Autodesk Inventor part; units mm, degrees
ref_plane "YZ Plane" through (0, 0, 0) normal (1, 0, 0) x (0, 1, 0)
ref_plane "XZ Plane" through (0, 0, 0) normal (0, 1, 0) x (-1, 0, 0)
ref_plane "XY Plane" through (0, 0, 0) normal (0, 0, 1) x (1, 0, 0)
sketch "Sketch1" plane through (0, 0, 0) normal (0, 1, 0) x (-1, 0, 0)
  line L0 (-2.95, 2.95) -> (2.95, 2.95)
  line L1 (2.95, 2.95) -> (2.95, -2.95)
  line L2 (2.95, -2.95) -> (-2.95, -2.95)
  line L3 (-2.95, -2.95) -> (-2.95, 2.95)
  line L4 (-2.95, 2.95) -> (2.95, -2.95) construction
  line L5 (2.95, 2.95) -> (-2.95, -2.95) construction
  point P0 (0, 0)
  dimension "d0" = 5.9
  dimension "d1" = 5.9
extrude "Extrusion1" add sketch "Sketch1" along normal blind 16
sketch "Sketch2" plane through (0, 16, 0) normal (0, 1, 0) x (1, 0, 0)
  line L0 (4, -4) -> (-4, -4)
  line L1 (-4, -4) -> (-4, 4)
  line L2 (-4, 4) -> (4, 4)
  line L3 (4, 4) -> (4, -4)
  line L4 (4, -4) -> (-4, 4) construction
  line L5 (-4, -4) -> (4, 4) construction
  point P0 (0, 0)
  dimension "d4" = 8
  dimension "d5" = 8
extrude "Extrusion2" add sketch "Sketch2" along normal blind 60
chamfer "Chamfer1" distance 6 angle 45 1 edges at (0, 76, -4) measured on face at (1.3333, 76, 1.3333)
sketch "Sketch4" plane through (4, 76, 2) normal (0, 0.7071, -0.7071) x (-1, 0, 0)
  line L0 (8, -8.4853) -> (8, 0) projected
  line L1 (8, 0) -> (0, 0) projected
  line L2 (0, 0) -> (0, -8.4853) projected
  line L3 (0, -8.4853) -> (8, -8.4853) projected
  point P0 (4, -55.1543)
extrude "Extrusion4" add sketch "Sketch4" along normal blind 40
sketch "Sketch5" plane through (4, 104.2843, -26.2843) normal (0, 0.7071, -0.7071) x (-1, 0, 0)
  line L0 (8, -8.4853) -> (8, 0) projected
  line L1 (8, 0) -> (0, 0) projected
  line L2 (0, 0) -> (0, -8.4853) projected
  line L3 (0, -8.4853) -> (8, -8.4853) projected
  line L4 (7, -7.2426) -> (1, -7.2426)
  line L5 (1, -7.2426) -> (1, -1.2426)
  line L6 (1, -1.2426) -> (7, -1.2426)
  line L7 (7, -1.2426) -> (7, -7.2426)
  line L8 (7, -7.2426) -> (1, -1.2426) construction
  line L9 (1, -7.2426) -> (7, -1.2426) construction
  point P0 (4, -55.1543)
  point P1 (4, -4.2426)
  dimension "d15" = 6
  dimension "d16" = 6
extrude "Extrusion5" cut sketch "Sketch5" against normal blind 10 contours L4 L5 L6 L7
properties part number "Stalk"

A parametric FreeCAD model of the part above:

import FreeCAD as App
import Part
import Sketcher
from FreeCAD import Vector
Q = App.Units.Quantity


def edges_at(feature, points):
    """Names of the edges that pass closest to the given points."""
    edges = feature.Shape.Edges
    near = lambda p: min(range(len(edges)), key=lambda i: edges[i].distToShape(Part.Vertex(*p))[0])
    return sorted({f"Edge{near(p) + 1}" for p in points})

doc = App.newDocument("Part")
body = doc.addObject("PartDesign::Body", "Body")

sketch1 = body.newObject("Sketcher::SketchObject", "Sketch")
sketch1.AttachmentSupport = (doc.getObject("XZ_Plane"), [""])
sketch1.MapMode = "FlatFace"
sketch1.addGeometry([
    Part.LineSegment(Vector(-3, 3, 0), Vector(3, 3, 0)),
    Part.LineSegment(Vector(3, 3, 0), Vector(3, -3, 0)),
    Part.LineSegment(Vector(3, -3, 0), Vector(-3, -3, 0)),
    Part.LineSegment(Vector(-3, -3, 0), Vector(-3, 3, 0)),
], False)
sketch1.addConstraint([
    Sketcher.Constraint("Coincident", 0, 2, 1, 1),
    Sketcher.Constraint("Coincident", 1, 2, 2, 1),
    Sketcher.Constraint("Coincident", 2, 2, 3, 1),
    Sketcher.Constraint("Coincident", 3, 2, 0, 1),
    Sketcher.Constraint("Horizontal", 0),
    Sketcher.Constraint("Vertical", 1),
    Sketcher.Constraint("Horizontal", 2),
    Sketcher.Constraint("Vertical", 3),
    Sketcher.Constraint("Symmetric", 0, 2, 2, 2, -1, 1),
    Sketcher.Constraint("Equal", 2, 1),
    Sketcher.Constraint("DistanceX", 0, 1, 0, 2, Q("5.9 mm")),
])
pad1 = body.newObject("PartDesign::Pad", "Pad")
pad1.Profile = sketch1
pad1.Length = 16
pad1.Reversed = True

sketch2 = body.newObject("Sketcher::SketchObject", "Sketch001")
sketch2.AttachmentSupport = (doc.getObject("XZ_Plane"), [""])
sketch2.MapMode = "FlatFace"
sketch2.AttachmentOffset = App.Placement(Vector(0, 0, -16), App.Rotation())
sketch2.addGeometry([
    Part.LineSegment(Vector(-4, 4, 0), Vector(4, 4, 0)),
    Part.LineSegment(Vector(4, 4, 0), Vector(4, -4, 0)),
    Part.LineSegment(Vector(4, -4, 0), Vector(-4, -4, 0)),
    Part.LineSegment(Vector(-4, -4, 0), Vector(-4, 4, 0)),
], False)
sketch2.addConstraint([
    Sketcher.Constraint("Coincident", 0, 2, 1, 1),
    Sketcher.Constraint("Coincident", 1, 2, 2, 1),
    Sketcher.Constraint("Coincident", 2, 2, 3, 1),
    Sketcher.Constraint("Coincident", 3, 2, 0, 1),
    Sketcher.Constraint("Horizontal", 0),
    Sketcher.Constraint("Vertical", 1),
    Sketcher.Constraint("Horizontal", 2),
    Sketcher.Constraint("Vertical", 3),
    Sketcher.Constraint("Symmetric", 0, 2, 2, 2, -1, 1),
    Sketcher.Constraint("Equal", 2, 1),
    Sketcher.Constraint("DistanceX", 0, 1, 0, 2, Q("8 mm")),
])
pad2 = body.newObject("PartDesign::Pad", "Pad001")
pad2.Profile = sketch2
pad2.Length = 60
pad2.Reversed = True
doc.recompute()

chamfer = body.newObject("PartDesign::Chamfer", "Chamfer")
chamfer.Base = (pad2, edges_at(pad2, [(0, 76, -4)]))
chamfer.Size = 6

sketch3 = body.newObject("Sketcher::SketchObject", "Sketch002")
sketch3.Placement = App.Placement(Vector(4, 76, 2), App.Rotation(Vector(-1, 0, 0), Vector(0, 0.707106781, 0.707106781), Vector(0, 0.707106781, -0.707106781), "ZXY"))
sketch3.addGeometry([
    Part.LineSegment(Vector(0, -8, 0), Vector(8, -8, 0)),
    Part.LineSegment(Vector(8, -8, 0), Vector(8, 0, 0)),
    Part.LineSegment(Vector(8, 0, 0), Vector(0, 0, 0)),
    Part.LineSegment(Vector(0, 0, 0), Vector(0, -8, 0)),
], False)
sketch3.addConstraint([
    Sketcher.Constraint("Coincident", 0, 2, 1, 1),
    Sketcher.Constraint("Coincident", 1, 2, 2, 1),
    Sketcher.Constraint("Coincident", 2, 2, 3, 1),
    Sketcher.Constraint("Coincident", 3, 2, 0, 1),
    Sketcher.Constraint("Horizontal", 0),
    Sketcher.Constraint("Vertical", 1),
    Sketcher.Constraint("Horizontal", 2),
    Sketcher.Constraint("Vertical", 3),
    Sketcher.Constraint("Coincident", 2, 2, -1, 1),
    Sketcher.Constraint("DistanceX", 0, 1, 0, 2, Q("8 mm")),
    Sketcher.Constraint("DistanceY", 1, 1, 1, 2, Q("8.4853 mm")),
])
pad3 = body.newObject("PartDesign::Pad", "Pad002")
pad3.Profile = sketch3
pad3.Length = 40

sketch4 = body.newObject("Sketcher::SketchObject", "Sketch003")
sketch4.Placement = App.Placement(Vector(4, 104.2843, -26.2843), App.Rotation(Vector(-1, 0, 0), Vector(0, 0.707106781, 0.707106781), Vector(0, 0.707106781, -0.707106781), "ZXY"))
sketch4.addGeometry([
    Part.LineSegment(Vector(1, -7, 0), Vector(7, -7, 0)),
    Part.LineSegment(Vector(7, -7, 0), Vector(7, -1, 0)),
    Part.LineSegment(Vector(7, -1, 0), Vector(1, -1, 0)),
    Part.LineSegment(Vector(1, -1, 0), Vector(1, -7, 0)),
], False)
sketch4.addConstraint([
    Sketcher.Constraint("Coincident", 0, 2, 1, 1),
    Sketcher.Constraint("Coincident", 1, 2, 2, 1),
    Sketcher.Constraint("Coincident", 2, 2, 3, 1),
    Sketcher.Constraint("Coincident", 3, 2, 0, 1),
    Sketcher.Constraint("Horizontal", 0),
    Sketcher.Constraint("Vertical", 1),
    Sketcher.Constraint("Horizontal", 2),
    Sketcher.Constraint("Vertical", 3),
    Sketcher.Constraint("Equal", 2, 1),
    Sketcher.Constraint("DistanceX", 0, 1, 0, 2, Q("6 mm")),
    Sketcher.Constraint("DistanceX", -1, 1, 0, 2, Q("7 mm")),
    Sketcher.Constraint("DistanceY", 0, 2, -1, 1, Q("7.2426 mm")),
])
pocket1 = body.newObject("PartDesign::Pocket", "Pocket")
pocket1.Profile = sketch4
pocket1.Length = 10

doc.recompute()
